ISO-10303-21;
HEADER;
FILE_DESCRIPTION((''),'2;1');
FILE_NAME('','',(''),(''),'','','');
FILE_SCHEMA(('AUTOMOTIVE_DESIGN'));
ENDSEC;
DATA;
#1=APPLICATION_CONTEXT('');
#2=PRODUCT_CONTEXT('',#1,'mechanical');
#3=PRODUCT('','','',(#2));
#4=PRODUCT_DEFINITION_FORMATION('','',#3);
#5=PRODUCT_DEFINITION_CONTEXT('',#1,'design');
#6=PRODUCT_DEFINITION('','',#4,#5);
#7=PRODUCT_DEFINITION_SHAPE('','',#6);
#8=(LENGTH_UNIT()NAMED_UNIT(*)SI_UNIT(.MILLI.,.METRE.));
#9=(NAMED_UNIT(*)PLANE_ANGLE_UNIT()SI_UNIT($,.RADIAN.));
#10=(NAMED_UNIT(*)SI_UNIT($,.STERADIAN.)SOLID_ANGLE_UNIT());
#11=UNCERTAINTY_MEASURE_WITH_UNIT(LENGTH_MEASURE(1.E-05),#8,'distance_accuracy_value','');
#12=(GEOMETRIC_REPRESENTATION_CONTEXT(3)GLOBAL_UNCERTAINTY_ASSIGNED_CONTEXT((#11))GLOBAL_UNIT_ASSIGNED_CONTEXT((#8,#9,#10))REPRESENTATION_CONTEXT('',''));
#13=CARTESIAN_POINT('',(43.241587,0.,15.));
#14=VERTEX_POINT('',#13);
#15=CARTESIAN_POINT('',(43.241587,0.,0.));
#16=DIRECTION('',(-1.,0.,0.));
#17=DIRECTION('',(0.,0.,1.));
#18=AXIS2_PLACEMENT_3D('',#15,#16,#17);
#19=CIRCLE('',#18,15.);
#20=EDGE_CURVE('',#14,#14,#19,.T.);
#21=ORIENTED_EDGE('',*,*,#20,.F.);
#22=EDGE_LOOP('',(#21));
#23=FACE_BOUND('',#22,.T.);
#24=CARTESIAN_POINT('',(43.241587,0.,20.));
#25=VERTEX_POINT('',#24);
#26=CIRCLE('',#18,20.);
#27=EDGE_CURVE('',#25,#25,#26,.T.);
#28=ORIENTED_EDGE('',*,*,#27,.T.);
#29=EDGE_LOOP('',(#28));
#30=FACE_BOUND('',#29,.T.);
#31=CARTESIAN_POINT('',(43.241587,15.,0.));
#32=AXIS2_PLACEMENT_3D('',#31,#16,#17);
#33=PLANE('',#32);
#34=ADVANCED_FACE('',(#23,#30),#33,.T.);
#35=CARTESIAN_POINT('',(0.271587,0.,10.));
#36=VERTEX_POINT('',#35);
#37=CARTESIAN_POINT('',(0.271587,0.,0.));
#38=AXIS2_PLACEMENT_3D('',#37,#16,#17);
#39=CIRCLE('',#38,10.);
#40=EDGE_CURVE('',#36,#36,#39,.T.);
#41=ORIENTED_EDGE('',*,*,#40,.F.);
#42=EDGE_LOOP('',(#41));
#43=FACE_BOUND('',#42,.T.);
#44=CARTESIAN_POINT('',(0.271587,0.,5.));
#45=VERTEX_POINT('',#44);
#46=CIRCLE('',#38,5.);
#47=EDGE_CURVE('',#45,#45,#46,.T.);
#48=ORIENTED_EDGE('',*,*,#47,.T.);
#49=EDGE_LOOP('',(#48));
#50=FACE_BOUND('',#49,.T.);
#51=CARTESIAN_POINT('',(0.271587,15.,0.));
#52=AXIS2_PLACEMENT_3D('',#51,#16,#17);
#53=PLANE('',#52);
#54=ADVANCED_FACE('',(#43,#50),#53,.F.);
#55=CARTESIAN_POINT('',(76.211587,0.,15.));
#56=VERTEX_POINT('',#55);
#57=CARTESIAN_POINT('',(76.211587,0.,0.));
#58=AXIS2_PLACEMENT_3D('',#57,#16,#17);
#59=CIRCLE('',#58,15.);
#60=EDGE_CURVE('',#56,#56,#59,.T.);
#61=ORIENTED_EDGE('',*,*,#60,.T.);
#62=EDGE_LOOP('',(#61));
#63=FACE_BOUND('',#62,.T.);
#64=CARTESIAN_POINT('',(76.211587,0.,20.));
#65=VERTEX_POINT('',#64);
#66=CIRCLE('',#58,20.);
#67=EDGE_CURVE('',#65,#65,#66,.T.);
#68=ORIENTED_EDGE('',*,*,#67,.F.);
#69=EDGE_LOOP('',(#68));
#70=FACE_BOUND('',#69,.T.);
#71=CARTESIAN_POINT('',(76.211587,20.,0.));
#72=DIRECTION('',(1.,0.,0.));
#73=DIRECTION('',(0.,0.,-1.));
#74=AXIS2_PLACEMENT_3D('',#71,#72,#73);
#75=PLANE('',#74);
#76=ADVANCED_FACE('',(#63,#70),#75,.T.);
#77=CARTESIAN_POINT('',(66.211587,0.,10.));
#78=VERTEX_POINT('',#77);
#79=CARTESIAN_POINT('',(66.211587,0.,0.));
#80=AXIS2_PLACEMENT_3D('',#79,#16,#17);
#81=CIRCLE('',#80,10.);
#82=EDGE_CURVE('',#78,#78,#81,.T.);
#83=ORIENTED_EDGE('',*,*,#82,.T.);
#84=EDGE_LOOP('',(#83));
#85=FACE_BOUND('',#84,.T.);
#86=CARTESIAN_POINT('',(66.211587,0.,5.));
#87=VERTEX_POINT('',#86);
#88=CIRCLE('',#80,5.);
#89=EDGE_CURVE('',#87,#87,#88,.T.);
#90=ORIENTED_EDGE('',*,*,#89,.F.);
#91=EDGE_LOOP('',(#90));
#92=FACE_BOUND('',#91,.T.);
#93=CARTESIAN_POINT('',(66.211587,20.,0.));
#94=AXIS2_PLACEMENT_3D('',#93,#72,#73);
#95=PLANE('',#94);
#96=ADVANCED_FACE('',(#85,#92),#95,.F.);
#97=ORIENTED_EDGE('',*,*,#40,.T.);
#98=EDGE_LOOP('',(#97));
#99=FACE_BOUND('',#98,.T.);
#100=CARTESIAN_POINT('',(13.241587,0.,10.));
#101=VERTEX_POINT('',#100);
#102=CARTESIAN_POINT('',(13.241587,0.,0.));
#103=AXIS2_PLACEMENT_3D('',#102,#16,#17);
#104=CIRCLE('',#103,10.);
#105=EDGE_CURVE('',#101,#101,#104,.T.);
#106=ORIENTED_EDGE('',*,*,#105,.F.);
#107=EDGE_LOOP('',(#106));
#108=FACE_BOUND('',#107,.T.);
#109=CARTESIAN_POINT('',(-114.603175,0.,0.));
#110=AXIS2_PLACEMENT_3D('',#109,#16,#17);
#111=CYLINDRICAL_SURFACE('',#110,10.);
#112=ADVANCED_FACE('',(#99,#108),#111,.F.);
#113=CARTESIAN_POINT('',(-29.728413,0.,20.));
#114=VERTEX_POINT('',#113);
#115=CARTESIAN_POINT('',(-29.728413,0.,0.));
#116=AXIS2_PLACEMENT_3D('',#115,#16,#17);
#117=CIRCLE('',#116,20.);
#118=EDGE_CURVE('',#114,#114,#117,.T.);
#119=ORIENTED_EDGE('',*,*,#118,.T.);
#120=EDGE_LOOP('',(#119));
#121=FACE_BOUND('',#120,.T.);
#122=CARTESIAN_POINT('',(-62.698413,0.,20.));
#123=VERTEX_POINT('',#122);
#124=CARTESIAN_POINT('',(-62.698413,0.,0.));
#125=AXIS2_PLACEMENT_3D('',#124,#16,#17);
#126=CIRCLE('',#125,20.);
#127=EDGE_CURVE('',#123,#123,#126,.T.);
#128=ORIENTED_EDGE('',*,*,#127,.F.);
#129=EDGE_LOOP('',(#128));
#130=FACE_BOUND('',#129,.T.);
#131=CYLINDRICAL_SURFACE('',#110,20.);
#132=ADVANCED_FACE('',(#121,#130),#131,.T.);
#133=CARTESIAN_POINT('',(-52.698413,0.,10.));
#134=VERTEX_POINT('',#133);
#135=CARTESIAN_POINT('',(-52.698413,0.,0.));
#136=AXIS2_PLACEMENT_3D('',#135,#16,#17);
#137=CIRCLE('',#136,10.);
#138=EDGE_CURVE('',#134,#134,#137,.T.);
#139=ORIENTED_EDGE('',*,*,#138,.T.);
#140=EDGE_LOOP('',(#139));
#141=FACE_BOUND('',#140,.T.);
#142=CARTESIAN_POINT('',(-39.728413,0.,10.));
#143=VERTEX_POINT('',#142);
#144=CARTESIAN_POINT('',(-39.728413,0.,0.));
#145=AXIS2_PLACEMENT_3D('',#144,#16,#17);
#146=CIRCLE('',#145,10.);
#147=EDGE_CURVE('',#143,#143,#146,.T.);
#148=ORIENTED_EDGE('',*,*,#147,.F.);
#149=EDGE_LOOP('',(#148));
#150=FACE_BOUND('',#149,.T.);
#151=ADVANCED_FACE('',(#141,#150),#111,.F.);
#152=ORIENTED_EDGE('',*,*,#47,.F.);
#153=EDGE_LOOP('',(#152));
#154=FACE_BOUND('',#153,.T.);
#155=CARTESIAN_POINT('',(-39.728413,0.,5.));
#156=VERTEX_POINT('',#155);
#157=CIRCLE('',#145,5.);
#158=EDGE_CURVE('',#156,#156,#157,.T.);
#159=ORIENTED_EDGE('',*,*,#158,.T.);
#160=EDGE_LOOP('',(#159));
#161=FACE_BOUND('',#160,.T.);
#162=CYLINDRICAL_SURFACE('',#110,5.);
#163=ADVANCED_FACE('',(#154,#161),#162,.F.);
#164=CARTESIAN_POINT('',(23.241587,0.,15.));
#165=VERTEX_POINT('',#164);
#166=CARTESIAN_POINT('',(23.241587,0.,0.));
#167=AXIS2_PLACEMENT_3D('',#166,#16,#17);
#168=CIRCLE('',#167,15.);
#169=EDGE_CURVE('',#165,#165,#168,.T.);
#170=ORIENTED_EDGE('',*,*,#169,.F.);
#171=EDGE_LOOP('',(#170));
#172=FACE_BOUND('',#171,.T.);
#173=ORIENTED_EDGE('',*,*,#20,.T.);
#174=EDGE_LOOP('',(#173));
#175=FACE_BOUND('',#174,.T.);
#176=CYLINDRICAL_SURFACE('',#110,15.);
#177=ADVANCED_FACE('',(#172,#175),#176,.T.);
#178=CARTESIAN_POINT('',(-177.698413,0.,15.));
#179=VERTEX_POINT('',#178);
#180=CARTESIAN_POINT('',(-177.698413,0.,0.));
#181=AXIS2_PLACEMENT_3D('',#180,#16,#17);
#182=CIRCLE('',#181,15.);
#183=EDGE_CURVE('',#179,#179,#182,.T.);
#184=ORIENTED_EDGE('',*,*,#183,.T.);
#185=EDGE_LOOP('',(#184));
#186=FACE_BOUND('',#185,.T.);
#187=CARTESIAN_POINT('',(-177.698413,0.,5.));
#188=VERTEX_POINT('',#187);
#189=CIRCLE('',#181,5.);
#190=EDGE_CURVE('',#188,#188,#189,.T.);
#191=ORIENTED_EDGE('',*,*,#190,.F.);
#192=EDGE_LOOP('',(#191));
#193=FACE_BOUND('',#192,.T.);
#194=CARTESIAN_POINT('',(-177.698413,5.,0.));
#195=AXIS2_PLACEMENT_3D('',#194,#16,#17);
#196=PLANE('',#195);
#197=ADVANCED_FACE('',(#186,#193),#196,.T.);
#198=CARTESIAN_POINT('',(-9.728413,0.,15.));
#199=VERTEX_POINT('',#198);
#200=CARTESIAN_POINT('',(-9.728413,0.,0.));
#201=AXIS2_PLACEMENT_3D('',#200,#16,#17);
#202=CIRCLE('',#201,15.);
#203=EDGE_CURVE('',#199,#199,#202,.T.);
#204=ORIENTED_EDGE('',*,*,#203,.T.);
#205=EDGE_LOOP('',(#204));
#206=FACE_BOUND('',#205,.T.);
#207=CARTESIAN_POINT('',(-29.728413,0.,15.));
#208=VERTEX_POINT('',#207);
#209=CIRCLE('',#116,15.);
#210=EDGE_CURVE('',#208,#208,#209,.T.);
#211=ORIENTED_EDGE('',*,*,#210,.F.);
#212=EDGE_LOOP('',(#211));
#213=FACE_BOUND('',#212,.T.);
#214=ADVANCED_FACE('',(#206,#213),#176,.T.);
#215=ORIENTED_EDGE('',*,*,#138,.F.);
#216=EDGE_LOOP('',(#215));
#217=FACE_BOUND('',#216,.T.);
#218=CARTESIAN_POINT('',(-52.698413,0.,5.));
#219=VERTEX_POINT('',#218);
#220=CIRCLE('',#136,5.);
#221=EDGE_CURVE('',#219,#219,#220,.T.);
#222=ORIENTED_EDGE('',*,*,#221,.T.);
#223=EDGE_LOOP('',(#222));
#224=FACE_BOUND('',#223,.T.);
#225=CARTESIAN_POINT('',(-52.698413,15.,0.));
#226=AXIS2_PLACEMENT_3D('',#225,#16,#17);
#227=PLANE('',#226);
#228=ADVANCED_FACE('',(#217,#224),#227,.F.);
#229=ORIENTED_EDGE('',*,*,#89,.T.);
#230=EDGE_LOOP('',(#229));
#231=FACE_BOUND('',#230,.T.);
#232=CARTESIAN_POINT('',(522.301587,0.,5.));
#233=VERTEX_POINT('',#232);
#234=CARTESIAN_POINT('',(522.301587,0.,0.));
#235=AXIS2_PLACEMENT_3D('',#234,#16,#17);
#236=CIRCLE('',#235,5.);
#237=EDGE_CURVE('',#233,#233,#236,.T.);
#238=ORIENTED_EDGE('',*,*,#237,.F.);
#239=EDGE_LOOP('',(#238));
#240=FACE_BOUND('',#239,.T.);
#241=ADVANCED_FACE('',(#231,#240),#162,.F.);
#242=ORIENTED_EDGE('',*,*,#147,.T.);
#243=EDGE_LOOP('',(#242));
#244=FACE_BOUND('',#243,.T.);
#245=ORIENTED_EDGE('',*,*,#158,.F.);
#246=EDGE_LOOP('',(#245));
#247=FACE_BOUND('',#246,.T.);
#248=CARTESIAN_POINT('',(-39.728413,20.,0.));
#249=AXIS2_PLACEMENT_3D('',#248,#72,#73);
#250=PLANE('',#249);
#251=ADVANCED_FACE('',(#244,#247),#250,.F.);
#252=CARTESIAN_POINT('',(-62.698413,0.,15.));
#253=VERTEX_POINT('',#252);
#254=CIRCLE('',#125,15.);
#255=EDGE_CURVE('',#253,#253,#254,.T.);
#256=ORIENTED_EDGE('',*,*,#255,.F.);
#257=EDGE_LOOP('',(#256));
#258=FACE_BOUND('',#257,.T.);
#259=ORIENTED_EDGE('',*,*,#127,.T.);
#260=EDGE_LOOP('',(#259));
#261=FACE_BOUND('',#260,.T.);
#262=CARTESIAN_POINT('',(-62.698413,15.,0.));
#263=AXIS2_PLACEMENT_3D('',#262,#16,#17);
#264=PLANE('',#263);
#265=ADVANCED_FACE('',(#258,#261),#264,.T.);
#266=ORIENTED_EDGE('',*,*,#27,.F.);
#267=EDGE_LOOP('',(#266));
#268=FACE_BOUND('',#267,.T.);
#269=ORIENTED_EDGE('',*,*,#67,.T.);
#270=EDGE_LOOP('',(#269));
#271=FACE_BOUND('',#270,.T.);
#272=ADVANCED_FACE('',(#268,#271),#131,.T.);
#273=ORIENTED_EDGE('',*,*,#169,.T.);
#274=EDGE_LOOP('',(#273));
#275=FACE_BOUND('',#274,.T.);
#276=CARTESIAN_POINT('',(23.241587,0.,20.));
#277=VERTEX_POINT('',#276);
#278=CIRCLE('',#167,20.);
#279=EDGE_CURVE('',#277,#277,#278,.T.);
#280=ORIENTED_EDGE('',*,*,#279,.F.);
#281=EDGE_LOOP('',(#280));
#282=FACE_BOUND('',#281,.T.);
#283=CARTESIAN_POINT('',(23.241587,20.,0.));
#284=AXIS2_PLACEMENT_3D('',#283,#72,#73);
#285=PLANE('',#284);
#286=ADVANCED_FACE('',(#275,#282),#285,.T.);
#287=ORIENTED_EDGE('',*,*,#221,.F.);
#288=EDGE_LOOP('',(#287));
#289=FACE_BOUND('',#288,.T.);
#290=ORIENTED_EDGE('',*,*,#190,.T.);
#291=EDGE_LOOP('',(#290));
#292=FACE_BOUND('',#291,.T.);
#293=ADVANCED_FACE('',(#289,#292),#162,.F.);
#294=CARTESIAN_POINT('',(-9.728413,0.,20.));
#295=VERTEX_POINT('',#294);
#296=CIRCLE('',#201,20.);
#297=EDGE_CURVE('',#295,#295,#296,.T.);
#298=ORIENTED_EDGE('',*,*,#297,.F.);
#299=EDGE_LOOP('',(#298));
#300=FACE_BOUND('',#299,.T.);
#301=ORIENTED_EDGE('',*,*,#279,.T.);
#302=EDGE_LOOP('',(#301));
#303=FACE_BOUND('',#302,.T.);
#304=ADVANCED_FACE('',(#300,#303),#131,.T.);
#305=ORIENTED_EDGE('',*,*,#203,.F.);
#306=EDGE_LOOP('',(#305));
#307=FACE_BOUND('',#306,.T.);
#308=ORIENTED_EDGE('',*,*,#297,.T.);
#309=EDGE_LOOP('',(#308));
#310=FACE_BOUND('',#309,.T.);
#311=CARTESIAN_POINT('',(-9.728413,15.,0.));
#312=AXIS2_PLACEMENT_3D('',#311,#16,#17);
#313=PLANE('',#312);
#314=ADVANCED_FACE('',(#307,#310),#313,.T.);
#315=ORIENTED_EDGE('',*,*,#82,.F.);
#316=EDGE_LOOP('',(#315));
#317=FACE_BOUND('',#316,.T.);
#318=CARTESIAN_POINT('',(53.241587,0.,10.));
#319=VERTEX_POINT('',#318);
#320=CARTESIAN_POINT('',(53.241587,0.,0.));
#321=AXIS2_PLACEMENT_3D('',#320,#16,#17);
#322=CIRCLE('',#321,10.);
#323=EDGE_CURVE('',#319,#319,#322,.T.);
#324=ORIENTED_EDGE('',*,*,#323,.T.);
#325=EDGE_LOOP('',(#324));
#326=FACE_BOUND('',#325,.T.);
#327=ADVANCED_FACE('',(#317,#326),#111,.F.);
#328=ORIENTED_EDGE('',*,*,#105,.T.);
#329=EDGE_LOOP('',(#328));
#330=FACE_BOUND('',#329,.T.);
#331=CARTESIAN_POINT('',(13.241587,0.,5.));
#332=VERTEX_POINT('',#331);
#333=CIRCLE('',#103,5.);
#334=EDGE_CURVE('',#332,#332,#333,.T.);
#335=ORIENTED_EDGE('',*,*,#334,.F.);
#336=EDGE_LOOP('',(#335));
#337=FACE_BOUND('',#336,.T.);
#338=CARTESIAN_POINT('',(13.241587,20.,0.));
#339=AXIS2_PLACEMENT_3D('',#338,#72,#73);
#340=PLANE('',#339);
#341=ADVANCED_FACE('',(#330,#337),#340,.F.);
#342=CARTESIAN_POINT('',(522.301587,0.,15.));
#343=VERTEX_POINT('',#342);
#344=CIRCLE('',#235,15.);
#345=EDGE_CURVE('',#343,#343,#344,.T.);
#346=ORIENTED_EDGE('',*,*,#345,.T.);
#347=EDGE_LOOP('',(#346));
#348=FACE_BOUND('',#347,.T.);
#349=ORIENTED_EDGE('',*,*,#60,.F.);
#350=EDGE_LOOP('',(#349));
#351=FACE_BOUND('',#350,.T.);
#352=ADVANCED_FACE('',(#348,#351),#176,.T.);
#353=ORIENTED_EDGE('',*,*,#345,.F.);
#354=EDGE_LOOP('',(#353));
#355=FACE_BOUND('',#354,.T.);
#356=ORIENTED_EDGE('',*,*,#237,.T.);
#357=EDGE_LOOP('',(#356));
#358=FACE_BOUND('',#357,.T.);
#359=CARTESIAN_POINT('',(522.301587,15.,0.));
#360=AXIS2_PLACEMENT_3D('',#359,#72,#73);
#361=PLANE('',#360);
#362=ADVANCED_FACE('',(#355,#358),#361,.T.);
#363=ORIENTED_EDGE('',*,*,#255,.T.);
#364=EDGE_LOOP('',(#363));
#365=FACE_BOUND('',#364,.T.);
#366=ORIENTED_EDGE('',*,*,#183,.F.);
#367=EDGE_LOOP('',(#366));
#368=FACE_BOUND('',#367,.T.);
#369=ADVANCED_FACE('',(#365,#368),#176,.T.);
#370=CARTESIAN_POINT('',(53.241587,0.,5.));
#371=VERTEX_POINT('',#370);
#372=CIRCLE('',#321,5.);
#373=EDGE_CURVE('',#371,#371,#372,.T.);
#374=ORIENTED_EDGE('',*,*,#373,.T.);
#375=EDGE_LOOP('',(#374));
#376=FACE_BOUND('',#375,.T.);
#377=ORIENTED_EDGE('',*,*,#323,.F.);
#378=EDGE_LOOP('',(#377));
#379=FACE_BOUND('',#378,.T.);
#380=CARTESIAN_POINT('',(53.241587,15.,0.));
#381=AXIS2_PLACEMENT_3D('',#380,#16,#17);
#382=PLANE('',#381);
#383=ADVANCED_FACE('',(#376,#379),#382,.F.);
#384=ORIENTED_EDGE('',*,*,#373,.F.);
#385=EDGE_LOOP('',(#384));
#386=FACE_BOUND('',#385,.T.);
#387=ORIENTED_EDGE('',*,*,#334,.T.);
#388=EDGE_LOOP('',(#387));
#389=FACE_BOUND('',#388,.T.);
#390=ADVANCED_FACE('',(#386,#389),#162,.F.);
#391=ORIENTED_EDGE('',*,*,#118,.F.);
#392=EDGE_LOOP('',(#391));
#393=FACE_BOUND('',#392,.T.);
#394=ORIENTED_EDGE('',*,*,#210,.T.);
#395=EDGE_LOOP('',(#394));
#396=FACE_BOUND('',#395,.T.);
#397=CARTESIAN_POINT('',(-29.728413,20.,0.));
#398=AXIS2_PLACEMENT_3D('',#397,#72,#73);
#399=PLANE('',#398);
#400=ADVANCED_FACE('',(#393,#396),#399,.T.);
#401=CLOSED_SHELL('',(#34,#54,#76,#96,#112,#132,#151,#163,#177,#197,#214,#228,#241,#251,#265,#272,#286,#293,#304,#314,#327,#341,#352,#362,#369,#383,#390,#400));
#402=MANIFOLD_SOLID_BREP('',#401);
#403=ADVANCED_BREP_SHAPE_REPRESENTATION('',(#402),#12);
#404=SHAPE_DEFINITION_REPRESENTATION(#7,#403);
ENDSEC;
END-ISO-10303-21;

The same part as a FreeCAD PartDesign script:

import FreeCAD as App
import Part
import Sketcher
from FreeCAD import Vector
Q = App.Units.Quantity

doc = App.newDocument("Part")
body = doc.addObject("PartDesign::Body", "Body")

# Sketch on XY plane
sketch1 = body.newObject("Sketcher::SketchObject", "Sketch")
sketch1.AttachmentSupport = (doc.getObject("XY_Plane"), [""])
sketch1.MapMode = "FlatFace"
sketch1.addGeometry(Part.LineSegment(Vector(-63, 15, 0), Vector(-178, 15, 0)), False)
sketch1.addGeometry(Part.LineSegment(Vector(-178, 15, 0), Vector(-178, 5, 0)), False)
sketch1.addGeometry(Part.LineSegment(Vector(-178, 5, 0), Vector(-53, 5, 0)), False)
sketch1.addGeometry(Part.LineSegment(Vector(-53, 5, 0), Vector(-53, 10, 0)), False)
sketch1.addGeometry(Part.LineSegment(Vector(-53, 10, 0), Vector(-40, 10, 0)), False)
sketch1.addGeometry(Part.LineSegment(Vector(-40, 10, 0), Vector(-40, 5, 0)), False)
sketch1.addGeometry(Part.LineSegment(Vector(-40, 5, 0), Vector(0, 5, 0)), False)
sketch1.addGeometry(Part.LineSegment(Vector(0, 5, 0), Vector(0, 10, 0)), False)
sketch1.addGeometry(Part.LineSegment(Vector(0, 10, 0), Vector(13, 10, 0)), False)
sketch1.addGeometry(Part.LineSegment(Vector(13, 10, 0), Vector(13, 5, 0)), False)
sketch1.addGeometry(Part.LineSegment(Vector(13, 5, 0), Vector(53, 5, 0)), False)
sketch1.addGeometry(Part.LineSegment(Vector(53, 5, 0), Vector(53, 10, 0)), False)
sketch1.addGeometry(Part.LineSegment(Vector(53, 10, 0), Vector(66, 10, 0)), False)
sketch1.addGeometry(Part.LineSegment(Vector(66, 10, 0), Vector(66, 5, 0)), False)
sketch1.addGeometry(Part.LineSegment(Vector(66, 5, 0), Vector(522, 5, 0)), False)
sketch1.addGeometry(Part.LineSegment(Vector(522, 5, 0), Vector(522, 15, 0)), False)
sketch1.addGeometry(Part.LineSegment(Vector(522, 15, 0), Vector(76, 15, 0)), False)
sketch1.addGeometry(Part.LineSegment(Vector(76, 15, 0), Vector(76, 20, 0)), False)
sketch1.addGeometry(Part.LineSegment(Vector(76, 20, 0), Vector(43, 20, 0)), False)
sketch1.addGeometry(Part.LineSegment(Vector(43, 20, 0), Vector(43, 15, 0)), False)
sketch1.addGeometry(Part.LineSegment(Vector(43, 15, 0), Vector(23, 15, 0)), False)
sketch1.addGeometry(Part.LineSegment(Vector(23, 15, 0), Vector(23, 20, 0)), False)
sketch1.addGeometry(Part.LineSegment(Vector(23, 20, 0), Vector(-10, 20, 0)), False)
sketch1.addGeometry(Part.LineSegment(Vector(-10, 20, 0), Vector(-10, 15, 0)), False)
sketch1.addGeometry(Part.LineSegment(Vector(-10, 15, 0), Vector(-30, 15, 0)), False)
sketch1.addGeometry(Part.LineSegment(Vector(-30, 15, 0), Vector(-30, 20, 0)), False)
sketch1.addGeometry(Part.LineSegment(Vector(-30, 20, 0), Vector(-63, 20, 0)), False)
sketch1.addGeometry(Part.LineSegment(Vector(-63, 20, 0), Vector(-63, 15, 0)), False)
sketch1.addConstraint(Sketcher.Constraint("Coincident", 0, 2, 1, 1))
sketch1.addConstraint(Sketcher.Constraint("Coincident", 1, 2, 2, 1))
sketch1.addConstraint(Sketcher.Constraint("Coincident", 2, 2, 3, 1))
sketch1.addConstraint(Sketcher.Constraint("Coincident", 3, 2, 4, 1))
sketch1.addConstraint(Sketcher.Constraint("Coincident", 4, 2, 5, 1))
sketch1.addConstraint(Sketcher.Constraint("Coincident", 5, 2, 6, 1))
sketch1.addConstraint(Sketcher.Constraint("Coincident", 6, 2, 7, 1))
sketch1.addConstraint(Sketcher.Constraint("Coincident", 7, 2, 8, 1))
sketch1.addConstraint(Sketcher.Constraint("Coincident", 8, 2, 9, 1))
sketch1.addConstraint(Sketcher.Constraint("Coincident", 9, 2, 10, 1))
sketch1.addConstraint(Sketcher.Constraint("Coincident", 10, 2, 11, 1))
sketch1.addConstraint(Sketcher.Constraint("Coincident", 11, 2, 12, 1))
sketch1.addConstraint(Sketcher.Constraint("Coincident", 12, 2, 13, 1))
sketch1.addConstraint(Sketcher.Constraint("Coincident", 13, 2, 14, 1))
sketch1.addConstraint(Sketcher.Constraint("Coincident", 14, 2, 15, 1))
sketch1.addConstraint(Sketcher.Constraint("Coincident", 15, 2, 16, 1))
sketch1.addConstraint(Sketcher.Constraint("Coincident", 16, 2, 17, 1))
sketch1.addConstraint(Sketcher.Constraint("Coincident", 17, 2, 18, 1))
sketch1.addConstraint(Sketcher.Constraint("Coincident", 18, 2, 19, 1))
sketch1.addConstraint(Sketcher.Constraint("Coincident", 19, 2, 20, 1))
sketch1.addConstraint(Sketcher.Constraint("Coincident", 20, 2, 21, 1))
sketch1.addConstraint(Sketcher.Constraint("Coincident", 21, 2, 22, 1))
sketch1.addConstraint(Sketcher.Constraint("Coincident", 22, 2, 23, 1))
sketch1.addConstraint(Sketcher.Constraint("Coincident", 23, 2, 24, 1))
sketch1.addConstraint(Sketcher.Constraint("Coincident", 24, 2, 25, 1))
sketch1.addConstraint(Sketcher.Constraint("Coincident", 25, 2, 26, 1))
sketch1.addConstraint(Sketcher.Constraint("Coincident", 26, 2, 27, 1))
sketch1.addConstraint(Sketcher.Constraint("Coincident", 27, 2, 0, 1))
sketch1.addConstraint(Sketcher.Constraint("Horizontal", 0))
sketch1.addConstraint(Sketcher.Constraint("Vertical", 1))
sketch1.addConstraint(Sketcher.Constraint("Horizontal", 2))
sketch1.addConstraint(Sketcher.Constraint("Vertical", 3))
sketch1.addConstraint(Sketcher.Constraint("Horizontal", 4))
sketch1.addConstraint(Sketcher.Constraint("Vertical", 5))
sketch1.addConstraint(Sketcher.Constraint("Horizontal", 6))
sketch1.addConstraint(Sketcher.Constraint("Vertical", 7))
sketch1.addConstraint(Sketcher.Constraint("Horizontal", 8))
sketch1.addConstraint(Sketcher.Constraint("Vertical", 9))
sketch1.addConstraint(Sketcher.Constraint("Horizontal", 10))
sketch1.addConstraint(Sketcher.Constraint("Vertical", 11))
sketch1.addConstraint(Sketcher.Constraint("Horizontal", 12))
sketch1.addConstraint(Sketcher.Constraint("Vertical", 13))
sketch1.addConstraint(Sketcher.Constraint("Horizontal", 14))
sketch1.addConstraint(Sketcher.Constraint("Vertical", 15))
sketch1.addConstraint(Sketcher.Constraint("Horizontal", 16))
sketch1.addConstraint(Sketcher.Constraint("Vertical", 17))
sketch1.addConstraint(Sketcher.Constraint("Horizontal", 18))
sketch1.addConstraint(Sketcher.Constraint("Vertical", 19))
sketch1.addConstraint(Sketcher.Constraint("Horizontal", 20))
sketch1.addConstraint(Sketcher.Constraint("Vertical", 21))
sketch1.addConstraint(Sketcher.Constraint("Horizontal", 22))
sketch1.addConstraint(Sketcher.Constraint("Vertical", 23))
sketch1.addConstraint(Sketcher.Constraint("Horizontal", 24))
sketch1.addConstraint(Sketcher.Constraint("Vertical", 25))
sketch1.addConstraint(Sketcher.Constraint("Horizontal", 26))
sketch1.addConstraint(Sketcher.Constraint("Vertical", 27))
sketch1.addConstraint(Sketcher.Constraint("Horizontal", 2, 2, 5, 2))
sketch1.addConstraint(Sketcher.Constraint("Horizontal", 4, 2, 7, 2))
sketch1.addConstraint(Sketcher.Constraint("Horizontal", 6, 2, 9, 2))
sketch1.addConstraint(Sketcher.Constraint("Horizontal", 8, 2, 11, 2))
sketch1.addConstraint(Sketcher.Constraint("Horizontal", 10, 2, 13, 2))
sketch1.addConstraint(Sketcher.Constraint("Horizontal", 0, 2, 15, 2))
sketch1.addConstraint(Sketcher.Constraint("Horizontal", 16, 2, 19, 2))
sketch1.addConstraint(Sketcher.Constraint("Horizontal", 18, 2, 21, 2))
sketch1.addConstraint(Sketcher.Constraint("Horizontal", 20, 2, 23, 2))
sketch1.addConstraint(Sketcher.Constraint("Horizontal", 22, 2, 25, 2))
sketch1.addConstraint(Sketcher.Constraint("Equal", 4, 8))
sketch1.addConstraint(Sketcher.Constraint("Equal", 6, 10))
sketch1.addConstraint(Sketcher.Constraint("Equal", 8, 12))
sketch1.addConstraint(Sketcher.Constraint("Equal", 18, 22))
sketch1.addConstraint(Sketcher.Constraint("Equal", 20, 24))
sketch1.addConstraint(Sketcher.Constraint("Equal", 22, 26))
sketch1.addConstraint(Sketcher.Constraint("Equal", 13, 17))
sketch1.addConstraint(Sketcher.Constraint("DistanceX", 0, 2, 0, 1, Q("115 mm")))
sketch1.addConstraint(Sketcher.Constraint("DistanceX", 2, 1, 2, 2, Q("125 mm")))
sketch1.addConstraint(Sketcher.Constraint("DistanceX", 6, 1, 6, 2, Q("40 mm")))
sketch1.addConstraint(Sketcher.Constraint("DistanceX", 20, 2, 20, 1, Q("20 mm")))
sketch1.addConstraint(Sketcher.Constraint("DistanceY", 1, 2, 1, 1, Q("10 mm")))
sketch1.addConstraint(Sketcher.Constraint("DistanceY", 3, 1, 3, 2, Q("5 mm")))
sketch1.addConstraint(Sketcher.Constraint("DistanceY", -1, 1, 0, 2, Q("15 mm")))
sketch1.addConstraint(Sketcher.Constraint("DistanceX", 12, 2, 16, 2, Q("10 mm")))
sketch1.addConstraint(Sketcher.Constraint("DistanceX", 4, 1, 4, 2, Q("12.97 mm")))
sketch1.addConstraint(Sketcher.Constraint("DistanceX", 14, 1, 14, 2, Q("456.09 mm")))
sketch1.addConstraint(Sketcher.Constraint("DistanceX", 0, 2, -1, 1, Q("177.698413 mm")))
revolution = body.newObject("PartDesign::Revolution", "Revolution")
revolution.Profile = sketch1
revolution.ReferenceAxis = (sketch1, ["H_Axis"])
revolution.Angle = 360

doc.recompute()
